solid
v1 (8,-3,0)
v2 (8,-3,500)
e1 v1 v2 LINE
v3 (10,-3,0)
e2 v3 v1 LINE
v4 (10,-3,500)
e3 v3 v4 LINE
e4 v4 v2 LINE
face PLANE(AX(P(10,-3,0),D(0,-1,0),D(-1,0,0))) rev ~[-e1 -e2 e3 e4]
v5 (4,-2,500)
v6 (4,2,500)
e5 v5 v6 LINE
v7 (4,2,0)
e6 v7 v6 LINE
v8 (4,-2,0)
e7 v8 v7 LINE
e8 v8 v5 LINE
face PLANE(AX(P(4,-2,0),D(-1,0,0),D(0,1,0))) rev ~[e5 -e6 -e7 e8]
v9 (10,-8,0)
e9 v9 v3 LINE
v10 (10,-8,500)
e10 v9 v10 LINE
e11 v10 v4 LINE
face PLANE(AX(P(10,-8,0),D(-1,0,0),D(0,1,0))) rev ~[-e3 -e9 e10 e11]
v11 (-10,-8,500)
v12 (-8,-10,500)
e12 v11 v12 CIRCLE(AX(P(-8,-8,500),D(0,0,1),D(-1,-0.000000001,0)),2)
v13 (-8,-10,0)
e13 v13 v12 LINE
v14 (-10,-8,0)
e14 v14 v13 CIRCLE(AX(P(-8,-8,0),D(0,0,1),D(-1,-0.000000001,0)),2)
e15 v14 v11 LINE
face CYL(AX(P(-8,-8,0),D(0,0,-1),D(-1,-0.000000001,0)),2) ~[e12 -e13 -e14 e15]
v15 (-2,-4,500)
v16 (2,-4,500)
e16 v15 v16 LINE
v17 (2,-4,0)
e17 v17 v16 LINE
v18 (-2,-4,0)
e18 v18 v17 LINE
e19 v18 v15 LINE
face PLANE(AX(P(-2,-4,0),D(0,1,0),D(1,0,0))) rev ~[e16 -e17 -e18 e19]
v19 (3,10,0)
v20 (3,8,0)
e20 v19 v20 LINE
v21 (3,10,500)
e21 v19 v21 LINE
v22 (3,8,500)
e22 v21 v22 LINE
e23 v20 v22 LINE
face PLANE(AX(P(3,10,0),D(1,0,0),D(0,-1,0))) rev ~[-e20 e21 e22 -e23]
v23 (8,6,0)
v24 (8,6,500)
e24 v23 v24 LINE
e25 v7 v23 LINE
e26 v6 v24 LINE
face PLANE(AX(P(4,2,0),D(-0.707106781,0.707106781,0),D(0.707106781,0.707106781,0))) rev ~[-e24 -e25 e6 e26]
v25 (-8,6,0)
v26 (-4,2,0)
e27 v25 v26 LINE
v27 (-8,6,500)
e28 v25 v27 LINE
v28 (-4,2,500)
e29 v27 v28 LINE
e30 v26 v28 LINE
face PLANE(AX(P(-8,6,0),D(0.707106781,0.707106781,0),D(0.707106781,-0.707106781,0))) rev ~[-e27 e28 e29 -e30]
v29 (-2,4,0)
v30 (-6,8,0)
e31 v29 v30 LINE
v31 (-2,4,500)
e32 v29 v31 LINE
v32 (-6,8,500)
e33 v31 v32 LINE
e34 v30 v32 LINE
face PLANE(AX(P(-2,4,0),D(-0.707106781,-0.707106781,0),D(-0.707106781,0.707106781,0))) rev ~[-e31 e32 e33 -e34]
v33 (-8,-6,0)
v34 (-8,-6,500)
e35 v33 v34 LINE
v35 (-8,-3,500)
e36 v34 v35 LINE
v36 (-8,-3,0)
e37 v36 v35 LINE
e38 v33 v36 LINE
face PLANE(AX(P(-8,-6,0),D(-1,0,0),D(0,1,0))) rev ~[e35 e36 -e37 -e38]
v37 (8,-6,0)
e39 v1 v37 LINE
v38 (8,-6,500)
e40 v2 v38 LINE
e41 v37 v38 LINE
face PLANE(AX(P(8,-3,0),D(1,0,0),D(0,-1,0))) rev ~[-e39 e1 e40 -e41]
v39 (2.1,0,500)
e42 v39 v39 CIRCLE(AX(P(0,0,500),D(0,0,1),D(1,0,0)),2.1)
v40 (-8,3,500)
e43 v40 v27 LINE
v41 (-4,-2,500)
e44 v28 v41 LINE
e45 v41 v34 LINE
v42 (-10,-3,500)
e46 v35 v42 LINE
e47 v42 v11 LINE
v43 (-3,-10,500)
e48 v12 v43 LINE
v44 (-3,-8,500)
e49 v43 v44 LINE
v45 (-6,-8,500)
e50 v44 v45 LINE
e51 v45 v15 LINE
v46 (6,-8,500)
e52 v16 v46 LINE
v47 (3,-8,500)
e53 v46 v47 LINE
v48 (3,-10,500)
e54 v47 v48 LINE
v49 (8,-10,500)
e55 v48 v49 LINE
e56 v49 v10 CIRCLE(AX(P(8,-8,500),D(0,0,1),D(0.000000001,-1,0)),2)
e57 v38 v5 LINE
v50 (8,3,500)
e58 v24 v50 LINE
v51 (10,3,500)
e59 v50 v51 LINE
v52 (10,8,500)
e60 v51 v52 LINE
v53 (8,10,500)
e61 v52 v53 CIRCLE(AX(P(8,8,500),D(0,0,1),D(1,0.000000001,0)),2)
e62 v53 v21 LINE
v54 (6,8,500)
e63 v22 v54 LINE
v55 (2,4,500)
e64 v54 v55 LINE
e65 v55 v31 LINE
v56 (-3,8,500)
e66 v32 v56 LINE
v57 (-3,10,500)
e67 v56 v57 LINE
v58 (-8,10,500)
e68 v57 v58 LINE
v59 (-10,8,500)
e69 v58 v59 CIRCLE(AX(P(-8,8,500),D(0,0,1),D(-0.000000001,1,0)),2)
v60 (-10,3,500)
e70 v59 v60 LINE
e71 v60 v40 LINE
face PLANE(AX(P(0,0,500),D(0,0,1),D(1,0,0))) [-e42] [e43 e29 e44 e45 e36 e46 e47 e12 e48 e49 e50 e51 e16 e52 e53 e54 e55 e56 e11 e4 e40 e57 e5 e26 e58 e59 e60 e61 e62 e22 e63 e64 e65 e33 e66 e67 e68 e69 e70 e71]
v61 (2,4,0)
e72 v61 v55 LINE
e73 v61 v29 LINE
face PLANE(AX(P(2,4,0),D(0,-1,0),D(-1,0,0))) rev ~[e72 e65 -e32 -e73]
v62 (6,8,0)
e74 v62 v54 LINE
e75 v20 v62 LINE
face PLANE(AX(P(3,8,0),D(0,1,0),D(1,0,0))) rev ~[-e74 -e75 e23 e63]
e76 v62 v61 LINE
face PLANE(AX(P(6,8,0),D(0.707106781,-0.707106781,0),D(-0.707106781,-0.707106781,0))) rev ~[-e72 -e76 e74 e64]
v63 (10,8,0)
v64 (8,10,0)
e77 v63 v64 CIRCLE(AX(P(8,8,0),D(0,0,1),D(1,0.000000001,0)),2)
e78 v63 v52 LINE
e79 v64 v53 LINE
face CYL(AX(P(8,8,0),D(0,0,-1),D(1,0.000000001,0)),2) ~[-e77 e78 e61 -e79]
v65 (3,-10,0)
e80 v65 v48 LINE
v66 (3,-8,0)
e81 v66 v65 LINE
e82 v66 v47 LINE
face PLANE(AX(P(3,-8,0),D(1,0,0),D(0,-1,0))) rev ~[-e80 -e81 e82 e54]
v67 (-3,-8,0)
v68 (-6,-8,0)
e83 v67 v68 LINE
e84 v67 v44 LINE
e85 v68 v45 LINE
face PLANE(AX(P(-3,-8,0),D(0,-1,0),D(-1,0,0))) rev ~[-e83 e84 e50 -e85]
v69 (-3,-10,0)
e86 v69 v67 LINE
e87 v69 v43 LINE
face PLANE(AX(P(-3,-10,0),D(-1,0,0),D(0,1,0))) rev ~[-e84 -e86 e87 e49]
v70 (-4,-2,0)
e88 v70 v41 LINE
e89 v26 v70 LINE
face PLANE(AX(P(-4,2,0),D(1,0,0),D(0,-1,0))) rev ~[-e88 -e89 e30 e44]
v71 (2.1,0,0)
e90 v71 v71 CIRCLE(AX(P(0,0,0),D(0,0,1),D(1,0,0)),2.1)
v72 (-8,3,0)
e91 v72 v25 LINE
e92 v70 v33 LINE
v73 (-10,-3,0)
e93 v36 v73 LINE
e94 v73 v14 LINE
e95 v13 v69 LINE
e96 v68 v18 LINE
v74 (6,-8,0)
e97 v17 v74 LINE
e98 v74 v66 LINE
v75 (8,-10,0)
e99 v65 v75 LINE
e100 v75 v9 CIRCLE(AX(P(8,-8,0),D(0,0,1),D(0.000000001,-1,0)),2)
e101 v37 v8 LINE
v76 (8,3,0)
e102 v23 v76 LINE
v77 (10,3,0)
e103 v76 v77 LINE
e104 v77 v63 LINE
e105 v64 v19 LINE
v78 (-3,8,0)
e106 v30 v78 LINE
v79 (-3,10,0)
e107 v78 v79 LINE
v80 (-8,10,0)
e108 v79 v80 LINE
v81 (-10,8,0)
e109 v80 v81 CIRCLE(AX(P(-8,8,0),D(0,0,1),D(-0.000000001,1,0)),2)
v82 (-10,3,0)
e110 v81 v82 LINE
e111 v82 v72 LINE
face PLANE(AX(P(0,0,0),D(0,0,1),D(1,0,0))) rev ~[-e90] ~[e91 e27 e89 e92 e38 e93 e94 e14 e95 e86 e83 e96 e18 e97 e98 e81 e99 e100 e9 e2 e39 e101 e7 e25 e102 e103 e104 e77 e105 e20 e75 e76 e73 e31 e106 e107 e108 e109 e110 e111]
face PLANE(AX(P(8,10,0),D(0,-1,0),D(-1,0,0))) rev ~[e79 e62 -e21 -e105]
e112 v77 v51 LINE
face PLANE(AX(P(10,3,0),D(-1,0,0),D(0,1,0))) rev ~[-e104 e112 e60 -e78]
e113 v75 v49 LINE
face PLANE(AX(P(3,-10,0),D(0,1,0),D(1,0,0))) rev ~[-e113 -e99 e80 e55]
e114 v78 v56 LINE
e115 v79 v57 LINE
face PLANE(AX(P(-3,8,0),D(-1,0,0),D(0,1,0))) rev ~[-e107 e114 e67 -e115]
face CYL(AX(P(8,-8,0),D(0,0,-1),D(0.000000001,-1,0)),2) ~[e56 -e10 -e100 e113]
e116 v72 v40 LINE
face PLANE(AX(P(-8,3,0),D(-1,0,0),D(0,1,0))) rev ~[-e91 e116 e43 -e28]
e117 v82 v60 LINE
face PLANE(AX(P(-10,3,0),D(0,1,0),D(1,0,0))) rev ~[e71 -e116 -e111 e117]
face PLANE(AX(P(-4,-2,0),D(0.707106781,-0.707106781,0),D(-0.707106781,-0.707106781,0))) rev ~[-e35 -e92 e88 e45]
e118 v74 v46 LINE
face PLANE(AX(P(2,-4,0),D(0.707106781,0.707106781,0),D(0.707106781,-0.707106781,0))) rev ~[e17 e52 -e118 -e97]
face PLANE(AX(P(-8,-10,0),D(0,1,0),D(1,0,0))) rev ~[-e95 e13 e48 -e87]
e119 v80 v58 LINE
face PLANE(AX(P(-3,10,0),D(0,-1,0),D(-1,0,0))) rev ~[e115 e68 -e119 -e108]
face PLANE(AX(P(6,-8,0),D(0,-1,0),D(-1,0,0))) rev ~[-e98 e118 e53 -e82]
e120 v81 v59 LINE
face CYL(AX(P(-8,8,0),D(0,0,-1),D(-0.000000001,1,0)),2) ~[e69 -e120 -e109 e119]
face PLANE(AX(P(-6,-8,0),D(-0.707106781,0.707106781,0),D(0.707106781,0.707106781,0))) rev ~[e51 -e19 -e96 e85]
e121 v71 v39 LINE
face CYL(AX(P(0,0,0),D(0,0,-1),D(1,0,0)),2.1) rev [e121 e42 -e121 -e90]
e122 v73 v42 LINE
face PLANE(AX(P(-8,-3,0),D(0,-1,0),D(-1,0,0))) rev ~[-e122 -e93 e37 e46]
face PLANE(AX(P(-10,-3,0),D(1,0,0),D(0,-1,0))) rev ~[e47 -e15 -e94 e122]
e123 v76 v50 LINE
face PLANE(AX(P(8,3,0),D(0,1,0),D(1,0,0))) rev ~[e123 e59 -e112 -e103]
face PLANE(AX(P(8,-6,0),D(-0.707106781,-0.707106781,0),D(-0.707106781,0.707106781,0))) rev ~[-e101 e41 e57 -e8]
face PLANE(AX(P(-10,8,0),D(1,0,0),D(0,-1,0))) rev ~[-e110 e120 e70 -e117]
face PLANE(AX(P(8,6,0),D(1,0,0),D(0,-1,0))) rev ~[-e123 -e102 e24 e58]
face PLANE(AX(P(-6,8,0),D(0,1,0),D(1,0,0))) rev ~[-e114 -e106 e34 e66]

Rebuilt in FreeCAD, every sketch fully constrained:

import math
import FreeCAD as App
import Part
import Sketcher

V = App.Vector

doc = App.newDocument("Part")
body = doc.addObject("PartDesign::Body", "Body")

# Sketch on XY plane
sketch1 = body.newObject("Sketcher::SketchObject", "Sketch")
sketch1.AttachmentSupport = (doc.getObject("XY_Plane"), [""])
sketch1.MapMode = "FlatFace"
sketch1.addGeometry(Part.LineSegment(V(-2, -4, 0), V(2, -4, 0)), False)
sketch1.addGeometry(Part.LineSegment(V(2, -4, 0), V(6, -8, 0)), False)
sketch1.addGeometry(Part.LineSegment(V(6, -8, 0), V(3, -8, 0)), False)
sketch1.addGeometry(Part.LineSegment(V(3, -8, 0), V(3, -10, 0)), False)
sketch1.addGeometry(Part.LineSegment(V(3, -10, 0), V(8, -10, 0)), False)
sketch1.addGeometry(Part.ArcOfCircle(Part.Circle(V(8, -8, 0), V(0, 0, 1), 2), math.radians(-90), math.radians(0)), False)
sketch1.addGeometry(Part.LineSegment(V(10, -8, 0), V(10, -3, 0)), False)
sketch1.addGeometry(Part.LineSegment(V(10, -3, 0), V(8, -3, 0)), False)
sketch1.addGeometry(Part.LineSegment(V(8, -3, 0), V(8, -6, 0)), False)
sketch1.addGeometry(Part.LineSegment(V(8, -6, 0), V(4, -2, 0)), False)
sketch1.addGeometry(Part.LineSegment(V(4, -2, 0), V(4, 2, 0)), False)
sketch1.addGeometry(Part.LineSegment(V(4, 2, 0), V(8, 6, 0)), False)
sketch1.addGeometry(Part.LineSegment(V(8, 6, 0), V(8, 3, 0)), False)
sketch1.addGeometry(Part.LineSegment(V(8, 3, 0), V(10, 3, 0)), False)
sketch1.addGeometry(Part.LineSegment(V(10, 3, 0), V(10, 8, 0)), False)
sketch1.addGeometry(Part.ArcOfCircle(Part.Circle(V(8, 8, 0), V(0, 0, 1), 2), math.radians(0), math.radians(90)), False)
sketch1.addGeometry(Part.LineSegment(V(8, 10, 0), V(3, 10, 0)), False)
sketch1.addGeometry(Part.LineSegment(V(3, 10, 0), V(3, 8, 0)), False)
sketch1.addGeometry(Part.LineSegment(V(3, 8, 0), V(6, 8, 0)), False)
sketch1.addGeometry(Part.LineSegment(V(6, 8, 0), V(2, 4, 0)), False)
sketch1.addGeometry(Part.LineSegment(V(2, 4, 0), V(-2, 4, 0)), False)
sketch1.addGeometry(Part.LineSegment(V(-2, 4, 0), V(-6, 8, 0)), False)
sketch1.addGeometry(Part.LineSegment(V(-6, 8, 0), V(-3, 8, 0)), False)
sketch1.addGeometry(Part.LineSegment(V(-3, 8, 0), V(-3, 10, 0)), False)
sketch1.addGeometry(Part.LineSegment(V(-3, 10, 0), V(-8, 10, 0)), False)
sketch1.addGeometry(Part.ArcOfCircle(Part.Circle(V(-8, 8, 0), V(0, 0, 1), 2), math.radians(90), math.radians(180)), False)
sketch1.addGeometry(Part.LineSegment(V(-10, 8, 0), V(-10, 3, 0)), False)
sketch1.addGeometry(Part.LineSegment(V(-10, 3, 0), V(-8, 3, 0)), False)
sketch1.addGeometry(Part.LineSegment(V(-8, 3, 0), V(-8, 6, 0)), False)
sketch1.addGeometry(Part.LineSegment(V(-8, 6, 0), V(-4, 2, 0)), False)
sketch1.addGeometry(Part.LineSegment(V(-4, 2, 0), V(-4, -2, 0)), False)
sketch1.addGeometry(Part.LineSegment(V(-4, -2, 0), V(-8, -6, 0)), False)
sketch1.addGeometry(Part.LineSegment(V(-8, -6, 0), V(-8, -3, 0)), False)
sketch1.addGeometry(Part.LineSegment(V(-8, -3, 0), V(-10, -3, 0)), False)
sketch1.addGeometry(Part.LineSegment(V(-10, -3, 0), V(-10, -8, 0)), False)
sketch1.addGeometry(Part.ArcOfCircle(Part.Circle(V(-8, -8, 0), V(0, 0, 1), 2), math.radians(-180), math.radians(-90)), False)
sketch1.addGeometry(Part.LineSegment(V(-8, -10, 0), V(-3, -10, 0)), False)
sketch1.addGeometry(Part.LineSegment(V(-3, -10, 0), V(-3, -8, 0)), False)
sketch1.addGeometry(Part.LineSegment(V(-3, -8, 0), V(-6, -8, 0)), False)
sketch1.addGeometry(Part.LineSegment(V(-6, -8, 0), V(-2, -4, 0)), False)
sketch1.addGeometry(Part.Circle(V(0, 0, 0), V(0, 0, 1), 2.1), False)
sketch1.addConstraint(Sketcher.Constraint("Coincident", 0, 2, 1, 1))
sketch1.addConstraint(Sketcher.Constraint("Coincident", 1, 2, 2, 1))
sketch1.addConstraint(Sketcher.Constraint("Coincident", 2, 2, 3, 1))
sketch1.addConstraint(Sketcher.Constraint("Coincident", 3, 2, 4, 1))
sketch1.addConstraint(Sketcher.Constraint("Tangent", 4, 2, 5, 1))
sketch1.addConstraint(Sketcher.Constraint("Tangent", 5, 2, 6, 1))
sketch1.addConstraint(Sketcher.Constraint("Coincident", 6, 2, 7, 1))
sketch1.addConstraint(Sketcher.Constraint("Coincident", 7, 2, 8, 1))
sketch1.addConstraint(Sketcher.Constraint("Coincident", 8, 2, 9, 1))
sketch1.addConstraint(Sketcher.Constraint("Coincident", 9, 2, 10, 1))
sketch1.addConstraint(Sketcher.Constraint("Coincident", 10, 2, 11, 1))
sketch1.addConstraint(Sketcher.Constraint("Coincident", 11, 2, 12, 1))
sketch1.addConstraint(Sketcher.Constraint("Coincident", 12, 2, 13, 1))
sketch1.addConstraint(Sketcher.Constraint("Coincident", 13, 2, 14, 1))
sketch1.addConstraint(Sketcher.Constraint("Tangent", 14, 2, 15, 1))
sketch1.addConstraint(Sketcher.Constraint("Tangent", 15, 2, 16, 1))
sketch1.addConstraint(Sketcher.Constraint("Coincident", 16, 2, 17, 1))
sketch1.addConstraint(Sketcher.Constraint("Coincident", 17, 2, 18, 1))
sketch1.addConstraint(Sketcher.Constraint("Coincident", 18, 2, 19, 1))
sketch1.addConstraint(Sketcher.Constraint("Coincident", 19, 2, 20, 1))
sketch1.addConstraint(Sketcher.Constraint("Coincident", 20, 2, 21, 1))
sketch1.addConstraint(Sketcher.Constraint("Coincident", 21, 2, 22, 1))
sketch1.addConstraint(Sketcher.Constraint("Coincident", 22, 2, 23, 1))
sketch1.addConstraint(Sketcher.Constraint("Coincident", 23, 2, 24, 1))
sketch1.addConstraint(Sketcher.Constraint("Tangent", 24, 2, 25, 1))
sketch1.addConstraint(Sketcher.Constraint("Tangent", 25, 2, 26, 1))
sketch1.addConstraint(Sketcher.Constraint("Coincident", 26, 2, 27, 1))
sketch1.addConstraint(Sketcher.Constraint("Coincident", 27, 2, 28, 1))
sketch1.addConstraint(Sketcher.Constraint("Coincident", 28, 2, 29, 1))
sketch1.addConstraint(Sketcher.Constraint("Coincident", 29, 2, 30, 1))
sketch1.addConstraint(Sketcher.Constraint("Coincident", 30, 2, 31, 1))
sketch1.addConstraint(Sketcher.Constraint("Coincident", 31, 2, 32, 1))
sketch1.addConstraint(Sketcher.Constraint("Coincident", 32, 2, 33, 1))
sketch1.addConstraint(Sketcher.Constraint("Coincident", 33, 2, 34, 1))
sketch1.addConstraint(Sketcher.Constraint("Tangent", 34, 2, 35, 1))
sketch1.addConstraint(Sketcher.Constraint("Tangent", 35, 2, 36, 1))
sketch1.addConstraint(Sketcher.Constraint("Coincident", 36, 2, 37, 1))
sketch1.addConstraint(Sketcher.Constraint("Coincident", 37, 2, 38, 1))
sketch1.addConstraint(Sketcher.Constraint("Coincident", 38, 2, 39, 1))
sketch1.addConstraint(Sketcher.Constraint("Coincident", 39, 2, 0, 1))
sketch1.addConstraint(Sketcher.Constraint("Horizontal", 0))
sketch1.addConstraint(Sketcher.Constraint("Horizontal", 2))
sketch1.addConstraint(Sketcher.Constraint("Vertical", 3))
sketch1.addConstraint(Sketcher.Constraint("Horizontal", 4))
sketch1.addConstraint(Sketcher.Constraint("Vertical", 6))
sketch1.addConstraint(Sketcher.Constraint("Horizontal", 7))
sketch1.addConstraint(Sketcher.Constraint("Vertical", 8))
sketch1.addConstraint(Sketcher.Constraint("Vertical", 10))
sketch1.addConstraint(Sketcher.Constraint("Vertical", 12))
sketch1.addConstraint(Sketcher.Constraint("Horizontal", 13))
sketch1.addConstraint(Sketcher.Constraint("Vertical", 14))
sketch1.addConstraint(Sketcher.Constraint("Horizontal", 16))
sketch1.addConstraint(Sketcher.Constraint("Vertical", 17))
sketch1.addConstraint(Sketcher.Constraint("Horizontal", 18))
sketch1.addConstraint(Sketcher.Constraint("Horizontal", 20))
sketch1.addConstraint(Sketcher.Constraint("Horizontal", 22))
sketch1.addConstraint(Sketcher.Constraint("Vertical", 23))
sketch1.addConstraint(Sketcher.Constraint("Horizontal", 24))
sketch1.addConstraint(Sketcher.Constraint("Vertical", 26))
sketch1.addConstraint(Sketcher.Constraint("Horizontal", 27))
sketch1.addConstraint(Sketcher.Constraint("Vertical", 28))
sketch1.addConstraint(Sketcher.Constraint("Vertical", 30))
sketch1.addConstraint(Sketcher.Constraint("Vertical", 32))
sketch1.addConstraint(Sketcher.Constraint("Horizontal", 33))
sketch1.addConstraint(Sketcher.Constraint("Vertical", 34))
sketch1.addConstraint(Sketcher.Constraint("Horizontal", 36))
sketch1.addConstraint(Sketcher.Constraint("Vertical", 37))
sketch1.addConstraint(Sketcher.Constraint("Horizontal", 38))
sketch1.addConstraint(Sketcher.Constraint("Coincident", 40, 3, -1, 1))
sketch1.addConstraint(Sketcher.Constraint("Equal", 5, 15))
sketch1.addConstraint(Sketcher.Constraint("Equal", 15, 25))
sketch1.addConstraint(Sketcher.Constraint("Equal", 25, 35))
sketch1.addConstraint(Sketcher.Constraint("Symmetric", 5, 3, 25, 3, -1, 1))
sketch1.addConstraint(Sketcher.Constraint("Symmetric", 15, 3, 35, 3, -1, 1))
sketch1.addConstraint(Sketcher.Constraint("Symmetric", 0, 2, 20, 2, -1, 1))
sketch1.addConstraint(Sketcher.Constraint("Symmetric", 1, 2, 21, 2, -1, 1))
sketch1.addConstraint(Sketcher.Constraint("Symmetric", 7, 2, 27, 2, -1, 1))
sketch1.addConstraint(Sketcher.Constraint("Symmetric", 9, 2, 29, 2, -1, 1))
sketch1.addConstraint(Sketcher.Constraint("Symmetric", 11, 2, 31, 2, -1, 1))
sketch1.addConstraint(Sketcher.Constraint("Symmetric", 17, 2, 37, 2, -1, 1))
sketch1.addConstraint(Sketcher.Constraint("Symmetric", 15, 3, 25, 3, -2))
sketch1.addConstraint(Sketcher.Constraint("Symmetric", 18, 2, 21, 2, -2))
sketch1.addConstraint(Sketcher.Constraint("Symmetric", 12, 2, 27, 2, -2))
sketch1.addConstraint(Sketcher.Constraint("Parallel", 1, 9))
sketch1.addConstraint(Sketcher.Constraint("Perpendicular", 9, 11))
sketch1.addConstraint(Sketcher.Constraint("Parallel", 11, 19))
sketch1.addConstraint(Sketcher.Constraint("Parallel", 21, 29))
sketch1.addConstraint(Sketcher.Constraint("Perpendicular", 29, 31))
sketch1.addConstraint(Sketcher.Constraint("Parallel", 31, 39))
sketch1.addConstraint(Sketcher.Constraint("Horizontal", 35, 3, 1, 2))
sketch1.addConstraint(Sketcher.Constraint("Horizontal", 11, 2, 28, 2))
sketch1.addConstraint(Sketcher.Constraint("Horizontal", 10, 2, 29, 2))
sketch1.addConstraint(Sketcher.Constraint("Horizontal", 7, 2, 32, 2))
sketch1.addConstraint(Sketcher.Constraint("Vertical", 4, 2, 7, 2))
sketch1.addConstraint(Sketcher.Constraint("Vertical", 3, 2, 16, 2))
sketch1.addConstraint(Sketcher.Constraint("Vertical", 23, 2, 36, 2))
sketch1.addConstraint(Sketcher.Constraint("Vertical", 21, 2, 38, 2))
sketch1.addConstraint(Sketcher.Constraint("Equal", 36, 6))
sketch1.addConstraint(Sketcher.Constraint("Equal", 38, 8))
sketch1.addConstraint(Sketcher.Constraint("Equal", 20, 10))
sketch1.addConstraint(Sketcher.Constraint("Equal", 1, 9))
sketch1.addConstraint(Sketcher.Constraint("Radius", 5, 2.0))
sketch1.addConstraint(Sketcher.Constraint("Diameter", 40, 4.2))
sketch1.addConstraint(Sketcher.Constraint("DistanceX", 0, 1, 0, 2, 4.0))
sketch1.addConstraint(Sketcher.Constraint("DistanceX", 2, 2, 2, 1, 3.0))
sketch1.addConstraint(Sketcher.Constraint("DistanceX", 4, 1, 4, 2, 5.0))
sketch1.addConstraint(Sketcher.Constraint("DistanceX", -1, 1, 5, 3, 8.0))
pad1 = body.newObject("PartDesign::Pad", "Pad")
pad1.Profile = sketch1
pad1.Length = 500

doc.recompute()
